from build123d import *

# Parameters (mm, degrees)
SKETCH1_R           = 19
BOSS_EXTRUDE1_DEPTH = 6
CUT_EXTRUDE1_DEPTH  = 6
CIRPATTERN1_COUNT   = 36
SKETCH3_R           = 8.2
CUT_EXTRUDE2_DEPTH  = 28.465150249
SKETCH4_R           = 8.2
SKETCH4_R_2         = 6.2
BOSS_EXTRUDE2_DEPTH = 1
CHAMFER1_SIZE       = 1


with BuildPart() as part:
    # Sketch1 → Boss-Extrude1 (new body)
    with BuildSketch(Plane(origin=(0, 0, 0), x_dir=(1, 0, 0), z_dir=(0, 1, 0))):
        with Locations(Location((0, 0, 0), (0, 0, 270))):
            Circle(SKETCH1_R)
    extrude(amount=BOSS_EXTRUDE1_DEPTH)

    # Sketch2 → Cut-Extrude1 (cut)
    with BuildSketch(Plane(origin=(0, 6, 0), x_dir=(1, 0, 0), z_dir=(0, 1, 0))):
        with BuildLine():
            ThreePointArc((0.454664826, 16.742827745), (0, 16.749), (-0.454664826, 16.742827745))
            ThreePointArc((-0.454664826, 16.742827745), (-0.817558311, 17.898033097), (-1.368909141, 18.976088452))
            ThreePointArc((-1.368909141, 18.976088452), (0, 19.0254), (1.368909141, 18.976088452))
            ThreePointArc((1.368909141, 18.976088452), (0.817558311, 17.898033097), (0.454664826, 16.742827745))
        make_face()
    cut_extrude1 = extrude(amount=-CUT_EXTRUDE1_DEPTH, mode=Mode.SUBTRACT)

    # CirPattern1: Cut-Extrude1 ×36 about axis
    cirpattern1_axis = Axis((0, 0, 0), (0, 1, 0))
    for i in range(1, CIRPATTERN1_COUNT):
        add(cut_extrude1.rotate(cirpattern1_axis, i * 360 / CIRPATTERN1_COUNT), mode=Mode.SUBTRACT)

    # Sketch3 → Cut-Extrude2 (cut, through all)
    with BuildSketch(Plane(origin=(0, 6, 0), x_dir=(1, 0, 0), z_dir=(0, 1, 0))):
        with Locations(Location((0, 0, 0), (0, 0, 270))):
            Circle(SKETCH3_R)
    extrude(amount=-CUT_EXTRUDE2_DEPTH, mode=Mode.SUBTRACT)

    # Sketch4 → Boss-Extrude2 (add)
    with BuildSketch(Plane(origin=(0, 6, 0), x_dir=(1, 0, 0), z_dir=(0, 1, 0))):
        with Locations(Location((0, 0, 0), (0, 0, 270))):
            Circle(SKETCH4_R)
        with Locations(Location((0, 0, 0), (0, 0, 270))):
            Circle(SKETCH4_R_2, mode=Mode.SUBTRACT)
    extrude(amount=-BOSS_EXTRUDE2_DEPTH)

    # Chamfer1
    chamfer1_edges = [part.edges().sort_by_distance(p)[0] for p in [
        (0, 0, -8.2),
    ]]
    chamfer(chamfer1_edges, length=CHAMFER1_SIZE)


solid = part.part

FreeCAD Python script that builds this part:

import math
import FreeCAD as App
import Part
import Sketcher

V = App.Vector
Q = App.Units.Quantity


def edges_at(feature, points):
    """Names of the edges that pass closest to the given points."""
    edges = feature.Shape.Edges
    near = lambda p: min(range(len(edges)), key=lambda i: edges[i].distToShape(Part.Vertex(*p))[0])
    return sorted({f"Edge{near(p) + 1}" for p in points})

doc = App.newDocument("Part")
params = doc.addObject("Spreadsheet::Sheet", "Params")
for row, (alias, value) in enumerate([
    ("sketch1_diameter", "38 mm"),
    ("pad1_length", "6 mm"),
    ("sketch2_radius", "7.2 mm"),
    ("pocket1_length", "6 mm"),
    ("sketch3_diameter", "16.4 mm"),
    ("sketch4_diameter", "16.4 mm"),
    ("sketch4_diameter2", "12.4 mm"),
    ("pad2_length", "1 mm"),
    ("chamfer_size", "1 mm"),
], start=1):
    params.set(f"A{row}", alias)
    params.set(f"B{row}", "=" + value)
    params.setAlias(f"B{row}", alias)

body = doc.addObject("PartDesign::Body", "Body")

# Sketch on XZ plane
sketch1 = body.newObject("Sketcher::SketchObject", "Sketch")
sketch1.AttachmentSupport = (doc.getObject("XZ_Plane"), [""])
sketch1.MapMode = "FlatFace"
sketch1.addGeometry(Part.Circle(V(0, 0, 0), V(0, 0, 1), 19), False)
sketch1.addConstraint([
    Sketcher.Constraint("Coincident", 0, 3, -1, 1),
    Sketcher.Constraint("Diameter", 0, Q("38 mm")),
])
sketch1.setExpression("Constraints[1]", "Params.sketch1_diameter")
pad1 = body.newObject("PartDesign::Pad", "Pad")
pad1.Profile = sketch1
pad1.setExpression("Length", "Params.pad1_length")
pad1.Reversed = True

# Sketch on XZ plane
sketch2 = body.newObject("Sketcher::SketchObject", "Sketch001")
sketch2.AttachmentSupport = (doc.getObject("XZ_Plane"), [""])
sketch2.MapMode = "FlatFace"
sketch2.AttachmentOffset = App.Placement(V(0, 0, -6), App.Rotation())
sketch2.addGeometry([
    Part.ArcOfCircle(Part.Circle(V(0, 0, 0), V(0, 0, 1), 16.7), math.radians(-91.56), math.radians(-88.44)),
    Part.ArcOfCircle(Part.Circle(V(7.5, -15.2, 0), V(0, 0, 1), 7.2), math.radians(-167.38), math.radians(-148.09)),
    Part.ArcOfCircle(Part.Circle(V(0, 0, 0), V(0, 0, 1), 19), math.radians(-94.13), math.radians(-85.87)),
    Part.ArcOfCircle(Part.Circle(V(-7.5, -15.2, 0), V(0, 0, 1), 7.2), math.radians(-31.91), math.radians(-12.62)),
], False)
sketch2.addConstraint([
    Sketcher.Constraint("Coincident", 0, 2, 1, 1),
    Sketcher.Constraint("Coincident", 1, 2, 2, 2),
    Sketcher.Constraint("Coincident", 2, 1, 3, 1),
    Sketcher.Constraint("Coincident", 3, 2, 0, 1),
    Sketcher.Constraint("Coincident", 0, 3, -1, 1),
    Sketcher.Constraint("Coincident", 2, 3, -1, 1),
    Sketcher.Constraint("Equal", 1, 3),
    Sketcher.Constraint("Symmetric", 1, 3, 3, 3, -2),
    Sketcher.Constraint("Radius", 1, Q("7.2 mm")),
    Sketcher.Constraint("Radius", 0, Q("16.749 mm")),
    Sketcher.Constraint("Radius", 2, Q("19.0254 mm")),
    Sketcher.Constraint("DistanceX", -1, 1, 1, 3, Q("7.480829 mm")),
    Sketcher.Constraint("DistanceX", -1, 1, 1, 2, Q("1.368909 mm")),
])
sketch2.setExpression("Constraints[8]", "Params.sketch2_radius")
pocket1 = body.newObject("PartDesign::Pocket", "Pocket")
pocket1.Profile = sketch2
pocket1.setExpression("Length", "Params.pocket1_length")
pocket1.Reversed = True
doc.recompute()

polarpattern = body.newObject("PartDesign::PolarPattern", "PolarPattern")
polarpattern.Originals = [pocket1]
polarpattern.Axis = (doc.getObject("Y_Axis"), [""])
polarpattern.Angle = 360
polarpattern.Occurrences = 36
body.Tip = polarpattern

# Sketch on XZ plane
sketch3 = body.newObject("Sketcher::SketchObject", "Sketch002")
sketch3.AttachmentSupport = (doc.getObject("XZ_Plane"), [""])
sketch3.MapMode = "FlatFace"
sketch3.AttachmentOffset = App.Placement(V(0, 0, -6), App.Rotation())
sketch3.addGeometry(Part.Circle(V(0, 0, 0), V(0, 0, 1), 8), False)
sketch3.addConstraint([
    Sketcher.Constraint("Coincident", 0, 3, -1, 1),
    Sketcher.Constraint("Diameter", 0, Q("16.4 mm")),
])
sketch3.setExpression("Constraints[1]", "Params.sketch3_diameter")
pocket2 = body.newObject("PartDesign::Pocket", "Pocket001")
pocket2.Profile = sketch3
pocket2.Type = "ThroughAll"
pocket2.Reversed = True

# Sketch on XZ plane
sketch4 = body.newObject("Sketcher::SketchObject", "Sketch003")
sketch4.AttachmentSupport = (doc.getObject("XZ_Plane"), [""])
sketch4.MapMode = "FlatFace"
sketch4.AttachmentOffset = App.Placement(V(0, 0, -6), App.Rotation())
sketch4.addGeometry([
    Part.Circle(V(0, 0, 0), V(0, 0, 1), 8),
    Part.Circle(V(0, 0, 0), V(0, 0, 1), 6),
], False)
sketch4.addConstraint([
    Sketcher.Constraint("Coincident", 0, 3, -1, 1),
    Sketcher.Constraint("Coincident", 1, 3, -1, 1),
    Sketcher.Constraint("Diameter", 0, Q("16.4 mm")),
    Sketcher.Constraint("Diameter", 1, Q("12.4 mm")),
])
sketch4.setExpression("Constraints[2]", "Params.sketch4_diameter")
sketch4.setExpression("Constraints[3]", "Params.sketch4_diameter2")
pad2 = body.newObject("PartDesign::Pad", "Pad001")
pad2.Profile = sketch4
pad2.setExpression("Length", "Params.pad2_length")
doc.recompute()

chamfer = body.newObject("PartDesign::Chamfer", "Chamfer")
chamfer.Base = (pad2, edges_at(pad2, [(0, 0, -8.2)]))
chamfer.setExpression("Size", "Params.chamfer_size")

doc.recompute()
